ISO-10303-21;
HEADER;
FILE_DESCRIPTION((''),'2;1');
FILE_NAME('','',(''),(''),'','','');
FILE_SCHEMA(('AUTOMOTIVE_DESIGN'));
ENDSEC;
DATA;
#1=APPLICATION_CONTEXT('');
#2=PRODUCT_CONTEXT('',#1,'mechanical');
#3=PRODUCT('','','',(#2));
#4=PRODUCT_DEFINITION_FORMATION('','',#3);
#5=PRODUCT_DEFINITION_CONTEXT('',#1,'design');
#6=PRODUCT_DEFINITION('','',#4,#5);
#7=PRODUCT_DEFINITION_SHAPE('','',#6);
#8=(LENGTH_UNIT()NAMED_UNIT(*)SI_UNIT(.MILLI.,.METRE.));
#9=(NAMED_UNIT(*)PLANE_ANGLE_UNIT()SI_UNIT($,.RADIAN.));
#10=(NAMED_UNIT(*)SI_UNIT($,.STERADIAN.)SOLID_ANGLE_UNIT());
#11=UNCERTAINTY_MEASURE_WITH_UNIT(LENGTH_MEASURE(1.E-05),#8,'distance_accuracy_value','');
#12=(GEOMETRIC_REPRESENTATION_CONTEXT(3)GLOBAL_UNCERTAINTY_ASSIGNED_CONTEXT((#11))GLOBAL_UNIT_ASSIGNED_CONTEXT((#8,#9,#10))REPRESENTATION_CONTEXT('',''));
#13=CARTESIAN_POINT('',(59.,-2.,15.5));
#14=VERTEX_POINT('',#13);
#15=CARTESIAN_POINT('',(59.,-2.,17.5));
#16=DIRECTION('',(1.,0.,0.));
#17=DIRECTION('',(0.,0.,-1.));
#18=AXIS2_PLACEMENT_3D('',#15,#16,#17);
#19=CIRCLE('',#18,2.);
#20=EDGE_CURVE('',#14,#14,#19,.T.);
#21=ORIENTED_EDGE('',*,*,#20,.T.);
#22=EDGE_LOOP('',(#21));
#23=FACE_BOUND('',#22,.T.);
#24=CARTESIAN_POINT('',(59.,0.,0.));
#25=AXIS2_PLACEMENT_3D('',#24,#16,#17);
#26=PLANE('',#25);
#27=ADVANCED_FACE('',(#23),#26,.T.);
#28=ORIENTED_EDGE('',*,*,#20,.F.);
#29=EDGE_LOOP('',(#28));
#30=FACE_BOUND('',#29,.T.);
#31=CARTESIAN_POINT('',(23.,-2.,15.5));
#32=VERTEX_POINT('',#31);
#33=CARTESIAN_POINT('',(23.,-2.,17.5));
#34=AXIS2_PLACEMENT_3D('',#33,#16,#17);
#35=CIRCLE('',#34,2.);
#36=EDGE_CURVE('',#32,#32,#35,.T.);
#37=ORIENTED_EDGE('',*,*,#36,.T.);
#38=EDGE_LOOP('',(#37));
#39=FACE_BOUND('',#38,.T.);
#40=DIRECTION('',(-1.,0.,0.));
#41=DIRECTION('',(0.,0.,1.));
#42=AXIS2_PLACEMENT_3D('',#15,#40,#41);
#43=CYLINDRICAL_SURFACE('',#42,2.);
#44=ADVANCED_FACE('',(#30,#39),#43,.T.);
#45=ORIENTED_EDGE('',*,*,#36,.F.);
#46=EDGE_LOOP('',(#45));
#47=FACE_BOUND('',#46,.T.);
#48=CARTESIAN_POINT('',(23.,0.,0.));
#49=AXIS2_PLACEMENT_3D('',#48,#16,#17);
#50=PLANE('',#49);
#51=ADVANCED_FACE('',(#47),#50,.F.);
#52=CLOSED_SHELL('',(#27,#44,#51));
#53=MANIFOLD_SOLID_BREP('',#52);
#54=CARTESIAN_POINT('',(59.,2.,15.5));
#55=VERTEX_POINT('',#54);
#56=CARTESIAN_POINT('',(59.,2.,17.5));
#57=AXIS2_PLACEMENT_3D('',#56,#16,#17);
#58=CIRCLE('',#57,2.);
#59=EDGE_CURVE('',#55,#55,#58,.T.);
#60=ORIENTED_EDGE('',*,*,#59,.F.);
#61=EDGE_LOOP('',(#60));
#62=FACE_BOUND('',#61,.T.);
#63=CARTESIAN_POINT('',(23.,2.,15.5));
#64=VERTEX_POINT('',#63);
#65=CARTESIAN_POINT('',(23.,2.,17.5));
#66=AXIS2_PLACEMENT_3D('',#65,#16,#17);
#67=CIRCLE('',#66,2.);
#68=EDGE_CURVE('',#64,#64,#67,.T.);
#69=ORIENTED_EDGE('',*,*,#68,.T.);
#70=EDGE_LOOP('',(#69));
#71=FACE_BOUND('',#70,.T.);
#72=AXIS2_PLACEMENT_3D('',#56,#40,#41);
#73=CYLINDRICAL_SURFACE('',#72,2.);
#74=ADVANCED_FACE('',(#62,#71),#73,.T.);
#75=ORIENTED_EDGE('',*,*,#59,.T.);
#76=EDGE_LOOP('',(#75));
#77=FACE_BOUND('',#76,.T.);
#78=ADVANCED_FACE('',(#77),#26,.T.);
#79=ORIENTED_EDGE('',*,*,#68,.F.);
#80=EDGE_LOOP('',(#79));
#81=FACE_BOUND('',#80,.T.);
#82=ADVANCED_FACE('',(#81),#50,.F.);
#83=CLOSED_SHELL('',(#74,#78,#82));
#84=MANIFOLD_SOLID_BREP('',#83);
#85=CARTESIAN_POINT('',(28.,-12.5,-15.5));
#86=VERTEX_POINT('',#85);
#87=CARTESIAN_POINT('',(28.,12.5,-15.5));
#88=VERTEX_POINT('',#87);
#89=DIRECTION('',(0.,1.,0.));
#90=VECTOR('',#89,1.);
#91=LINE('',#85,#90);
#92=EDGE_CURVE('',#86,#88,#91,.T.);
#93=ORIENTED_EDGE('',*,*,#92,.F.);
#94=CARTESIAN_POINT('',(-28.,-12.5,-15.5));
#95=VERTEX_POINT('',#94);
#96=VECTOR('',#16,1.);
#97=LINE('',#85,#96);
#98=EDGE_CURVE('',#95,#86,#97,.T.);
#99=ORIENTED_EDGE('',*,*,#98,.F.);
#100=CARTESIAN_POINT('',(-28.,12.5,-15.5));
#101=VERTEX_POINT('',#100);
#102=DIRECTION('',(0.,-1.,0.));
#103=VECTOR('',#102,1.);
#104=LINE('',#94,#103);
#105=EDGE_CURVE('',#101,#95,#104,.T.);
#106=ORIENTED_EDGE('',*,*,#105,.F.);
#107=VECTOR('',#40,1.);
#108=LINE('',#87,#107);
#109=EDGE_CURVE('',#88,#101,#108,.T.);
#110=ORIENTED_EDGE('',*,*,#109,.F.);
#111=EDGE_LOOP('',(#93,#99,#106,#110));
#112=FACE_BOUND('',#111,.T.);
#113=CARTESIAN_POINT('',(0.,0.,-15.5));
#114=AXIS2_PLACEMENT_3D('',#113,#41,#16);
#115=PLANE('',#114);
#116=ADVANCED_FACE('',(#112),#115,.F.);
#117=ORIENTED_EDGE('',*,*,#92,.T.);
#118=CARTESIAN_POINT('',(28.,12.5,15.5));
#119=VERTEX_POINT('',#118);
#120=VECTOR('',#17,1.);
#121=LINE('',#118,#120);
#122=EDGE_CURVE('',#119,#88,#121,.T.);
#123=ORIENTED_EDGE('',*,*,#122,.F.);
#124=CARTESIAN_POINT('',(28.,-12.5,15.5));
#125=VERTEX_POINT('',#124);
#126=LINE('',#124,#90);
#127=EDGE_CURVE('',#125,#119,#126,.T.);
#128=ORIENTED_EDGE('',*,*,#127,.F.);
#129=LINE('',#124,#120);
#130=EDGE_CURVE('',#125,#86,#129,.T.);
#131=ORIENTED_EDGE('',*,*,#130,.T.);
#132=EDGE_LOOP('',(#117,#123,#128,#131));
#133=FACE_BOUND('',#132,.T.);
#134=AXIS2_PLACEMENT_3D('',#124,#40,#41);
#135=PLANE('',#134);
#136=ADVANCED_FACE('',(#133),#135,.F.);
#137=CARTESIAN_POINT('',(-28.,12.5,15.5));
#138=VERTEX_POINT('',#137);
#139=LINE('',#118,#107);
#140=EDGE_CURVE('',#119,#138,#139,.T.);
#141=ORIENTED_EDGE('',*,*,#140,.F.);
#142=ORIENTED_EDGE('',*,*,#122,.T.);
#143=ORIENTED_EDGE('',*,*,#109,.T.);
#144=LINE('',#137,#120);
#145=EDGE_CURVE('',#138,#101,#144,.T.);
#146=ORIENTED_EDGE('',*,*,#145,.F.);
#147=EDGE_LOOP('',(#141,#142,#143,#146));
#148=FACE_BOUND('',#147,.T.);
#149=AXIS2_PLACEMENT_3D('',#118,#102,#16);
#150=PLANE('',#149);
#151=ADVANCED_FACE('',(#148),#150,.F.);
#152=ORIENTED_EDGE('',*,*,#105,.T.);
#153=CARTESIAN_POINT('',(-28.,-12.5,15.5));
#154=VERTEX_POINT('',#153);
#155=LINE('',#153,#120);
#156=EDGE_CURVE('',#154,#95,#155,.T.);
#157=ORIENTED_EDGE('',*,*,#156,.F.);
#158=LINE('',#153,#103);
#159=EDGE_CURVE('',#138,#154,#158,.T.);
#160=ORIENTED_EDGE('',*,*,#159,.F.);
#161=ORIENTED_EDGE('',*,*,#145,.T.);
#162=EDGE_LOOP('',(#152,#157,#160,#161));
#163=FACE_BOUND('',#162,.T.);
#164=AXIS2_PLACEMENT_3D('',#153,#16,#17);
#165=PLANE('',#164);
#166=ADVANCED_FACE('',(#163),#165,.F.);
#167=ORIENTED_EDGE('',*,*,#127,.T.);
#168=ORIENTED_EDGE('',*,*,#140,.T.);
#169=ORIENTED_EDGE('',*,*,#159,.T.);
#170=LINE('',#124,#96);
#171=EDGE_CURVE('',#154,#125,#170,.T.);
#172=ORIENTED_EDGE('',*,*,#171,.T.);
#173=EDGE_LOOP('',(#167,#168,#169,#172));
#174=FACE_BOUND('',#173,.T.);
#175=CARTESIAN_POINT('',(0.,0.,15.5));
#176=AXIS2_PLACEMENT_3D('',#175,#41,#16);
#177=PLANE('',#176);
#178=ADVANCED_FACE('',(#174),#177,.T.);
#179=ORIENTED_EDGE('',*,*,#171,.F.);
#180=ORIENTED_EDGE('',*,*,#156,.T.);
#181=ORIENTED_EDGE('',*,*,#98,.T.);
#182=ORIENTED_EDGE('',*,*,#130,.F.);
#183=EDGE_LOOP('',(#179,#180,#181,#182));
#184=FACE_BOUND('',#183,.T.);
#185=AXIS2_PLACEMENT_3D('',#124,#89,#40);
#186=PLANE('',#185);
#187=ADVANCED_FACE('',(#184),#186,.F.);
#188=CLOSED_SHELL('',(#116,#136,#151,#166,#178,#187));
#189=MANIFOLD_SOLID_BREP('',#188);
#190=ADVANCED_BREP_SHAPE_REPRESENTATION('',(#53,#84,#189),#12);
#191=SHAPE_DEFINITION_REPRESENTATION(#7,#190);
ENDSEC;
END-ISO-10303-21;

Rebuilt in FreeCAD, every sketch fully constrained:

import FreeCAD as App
import Part
import Sketcher

V = App.Vector
Q = App.Units.Quantity

doc = App.newDocument("Part")
body = doc.addObject("PartDesign::Body", "Body")

# Sketch on XY plane
sketch1 = body.newObject("Sketcher::SketchObject", "Sketch")
sketch1.AttachmentSupport = (doc.getObject("XY_Plane"), [""])
sketch1.MapMode = "FlatFace"
sketch1.addGeometry([
    Part.LineSegment(V(-28, 12.5, 0), V(-28, -12.5, 0)),
    Part.LineSegment(V(-28, -12.5, 0), V(28, -12.5, 0)),
    Part.LineSegment(V(28, -12.5, 0), V(28, 12.5, 0)),
    Part.LineSegment(V(28, 12.5, 0), V(-28, 12.5, 0)),
], False)
sketch1.addConstraint([
    Sketcher.Constraint("Coincident", 0, 2, 1, 1),
    Sketcher.Constraint("Coincident", 1, 2, 2, 1),
    Sketcher.Constraint("Coincident", 2, 2, 3, 1),
    Sketcher.Constraint("Coincident", 3, 2, 0, 1),
    Sketcher.Constraint("Vertical", 0),
    Sketcher.Constraint("Horizontal", 1),
    Sketcher.Constraint("Vertical", 2),
    Sketcher.Constraint("Horizontal", 3),
    Sketcher.Constraint("Symmetric", 0, 2, 2, 2, -1, 1),
    Sketcher.Constraint("DistanceX", 1, 1, 1, 2, Q("56 mm")),
    Sketcher.Constraint("DistanceY", 0, 2, 0, 1, Q("25 mm")),
])
pad1 = body.newObject("PartDesign::Pad", "Pad")
pad1.Profile = sketch1
pad1.Length = 31
pad1.Midplane = True
body2 = doc.addObject("PartDesign::Body", "Body001")

# Sketch on YZ plane
sketch2 = body2.newObject("Sketcher::SketchObject", "Sketch001")
sketch2.AttachmentSupport = (doc.getObject("YZ_Plane001"), [""])
sketch2.MapMode = "FlatFace"
sketch2.AttachmentOffset = App.Placement(V(0, 0, 28), App.Rotation())
sketch2.addGeometry(Part.Circle(V(2, 17.5, 0), V(0, 0, 1), 2), False)
sketch2.addConstraint([
    Sketcher.Constraint("Diameter", 0, Q("4 mm")),
    Sketcher.Constraint("DistanceX", -1, 1, 0, 3, Q("2 mm")),
    Sketcher.Constraint("DistanceY", -1, 1, 0, 3, Q("17.5 mm")),
])
pad2 = body2.newObject("PartDesign::Pad", "Pad001")
pad2.Profile = sketch2
pad2.Type = "TwoLengths"
pad2.Length = 31
pad2.Length2 = 5
body3 = doc.addObject("PartDesign::Body", "Body002")

# Sketch on YZ plane
sketch3 = body3.newObject("Sketcher::SketchObject", "Sketch002")
sketch3.AttachmentSupport = (doc.getObject("YZ_Plane002"), [""])
sketch3.MapMode = "FlatFace"
sketch3.AttachmentOffset = App.Placement(V(0, 0, 28), App.Rotation())
sketch3.addGeometry(Part.Circle(V(-2, 17.5, 0), V(0, 0, 1), 2), False)
sketch3.addConstraint([
    Sketcher.Constraint("Diameter", 0, Q("4 mm")),
    Sketcher.Constraint("DistanceX", 0, 3, -1, 1, Q("2 mm")),
    Sketcher.Constraint("DistanceY", -1, 1, 0, 3, Q("17.5 mm")),
])
pad3 = body3.newObject("PartDesign::Pad", "Pad002")
pad3.Profile = sketch3
pad3.Type = "TwoLengths"
pad3.Length = 31
pad3.Length2 = 5

doc.recompute()
